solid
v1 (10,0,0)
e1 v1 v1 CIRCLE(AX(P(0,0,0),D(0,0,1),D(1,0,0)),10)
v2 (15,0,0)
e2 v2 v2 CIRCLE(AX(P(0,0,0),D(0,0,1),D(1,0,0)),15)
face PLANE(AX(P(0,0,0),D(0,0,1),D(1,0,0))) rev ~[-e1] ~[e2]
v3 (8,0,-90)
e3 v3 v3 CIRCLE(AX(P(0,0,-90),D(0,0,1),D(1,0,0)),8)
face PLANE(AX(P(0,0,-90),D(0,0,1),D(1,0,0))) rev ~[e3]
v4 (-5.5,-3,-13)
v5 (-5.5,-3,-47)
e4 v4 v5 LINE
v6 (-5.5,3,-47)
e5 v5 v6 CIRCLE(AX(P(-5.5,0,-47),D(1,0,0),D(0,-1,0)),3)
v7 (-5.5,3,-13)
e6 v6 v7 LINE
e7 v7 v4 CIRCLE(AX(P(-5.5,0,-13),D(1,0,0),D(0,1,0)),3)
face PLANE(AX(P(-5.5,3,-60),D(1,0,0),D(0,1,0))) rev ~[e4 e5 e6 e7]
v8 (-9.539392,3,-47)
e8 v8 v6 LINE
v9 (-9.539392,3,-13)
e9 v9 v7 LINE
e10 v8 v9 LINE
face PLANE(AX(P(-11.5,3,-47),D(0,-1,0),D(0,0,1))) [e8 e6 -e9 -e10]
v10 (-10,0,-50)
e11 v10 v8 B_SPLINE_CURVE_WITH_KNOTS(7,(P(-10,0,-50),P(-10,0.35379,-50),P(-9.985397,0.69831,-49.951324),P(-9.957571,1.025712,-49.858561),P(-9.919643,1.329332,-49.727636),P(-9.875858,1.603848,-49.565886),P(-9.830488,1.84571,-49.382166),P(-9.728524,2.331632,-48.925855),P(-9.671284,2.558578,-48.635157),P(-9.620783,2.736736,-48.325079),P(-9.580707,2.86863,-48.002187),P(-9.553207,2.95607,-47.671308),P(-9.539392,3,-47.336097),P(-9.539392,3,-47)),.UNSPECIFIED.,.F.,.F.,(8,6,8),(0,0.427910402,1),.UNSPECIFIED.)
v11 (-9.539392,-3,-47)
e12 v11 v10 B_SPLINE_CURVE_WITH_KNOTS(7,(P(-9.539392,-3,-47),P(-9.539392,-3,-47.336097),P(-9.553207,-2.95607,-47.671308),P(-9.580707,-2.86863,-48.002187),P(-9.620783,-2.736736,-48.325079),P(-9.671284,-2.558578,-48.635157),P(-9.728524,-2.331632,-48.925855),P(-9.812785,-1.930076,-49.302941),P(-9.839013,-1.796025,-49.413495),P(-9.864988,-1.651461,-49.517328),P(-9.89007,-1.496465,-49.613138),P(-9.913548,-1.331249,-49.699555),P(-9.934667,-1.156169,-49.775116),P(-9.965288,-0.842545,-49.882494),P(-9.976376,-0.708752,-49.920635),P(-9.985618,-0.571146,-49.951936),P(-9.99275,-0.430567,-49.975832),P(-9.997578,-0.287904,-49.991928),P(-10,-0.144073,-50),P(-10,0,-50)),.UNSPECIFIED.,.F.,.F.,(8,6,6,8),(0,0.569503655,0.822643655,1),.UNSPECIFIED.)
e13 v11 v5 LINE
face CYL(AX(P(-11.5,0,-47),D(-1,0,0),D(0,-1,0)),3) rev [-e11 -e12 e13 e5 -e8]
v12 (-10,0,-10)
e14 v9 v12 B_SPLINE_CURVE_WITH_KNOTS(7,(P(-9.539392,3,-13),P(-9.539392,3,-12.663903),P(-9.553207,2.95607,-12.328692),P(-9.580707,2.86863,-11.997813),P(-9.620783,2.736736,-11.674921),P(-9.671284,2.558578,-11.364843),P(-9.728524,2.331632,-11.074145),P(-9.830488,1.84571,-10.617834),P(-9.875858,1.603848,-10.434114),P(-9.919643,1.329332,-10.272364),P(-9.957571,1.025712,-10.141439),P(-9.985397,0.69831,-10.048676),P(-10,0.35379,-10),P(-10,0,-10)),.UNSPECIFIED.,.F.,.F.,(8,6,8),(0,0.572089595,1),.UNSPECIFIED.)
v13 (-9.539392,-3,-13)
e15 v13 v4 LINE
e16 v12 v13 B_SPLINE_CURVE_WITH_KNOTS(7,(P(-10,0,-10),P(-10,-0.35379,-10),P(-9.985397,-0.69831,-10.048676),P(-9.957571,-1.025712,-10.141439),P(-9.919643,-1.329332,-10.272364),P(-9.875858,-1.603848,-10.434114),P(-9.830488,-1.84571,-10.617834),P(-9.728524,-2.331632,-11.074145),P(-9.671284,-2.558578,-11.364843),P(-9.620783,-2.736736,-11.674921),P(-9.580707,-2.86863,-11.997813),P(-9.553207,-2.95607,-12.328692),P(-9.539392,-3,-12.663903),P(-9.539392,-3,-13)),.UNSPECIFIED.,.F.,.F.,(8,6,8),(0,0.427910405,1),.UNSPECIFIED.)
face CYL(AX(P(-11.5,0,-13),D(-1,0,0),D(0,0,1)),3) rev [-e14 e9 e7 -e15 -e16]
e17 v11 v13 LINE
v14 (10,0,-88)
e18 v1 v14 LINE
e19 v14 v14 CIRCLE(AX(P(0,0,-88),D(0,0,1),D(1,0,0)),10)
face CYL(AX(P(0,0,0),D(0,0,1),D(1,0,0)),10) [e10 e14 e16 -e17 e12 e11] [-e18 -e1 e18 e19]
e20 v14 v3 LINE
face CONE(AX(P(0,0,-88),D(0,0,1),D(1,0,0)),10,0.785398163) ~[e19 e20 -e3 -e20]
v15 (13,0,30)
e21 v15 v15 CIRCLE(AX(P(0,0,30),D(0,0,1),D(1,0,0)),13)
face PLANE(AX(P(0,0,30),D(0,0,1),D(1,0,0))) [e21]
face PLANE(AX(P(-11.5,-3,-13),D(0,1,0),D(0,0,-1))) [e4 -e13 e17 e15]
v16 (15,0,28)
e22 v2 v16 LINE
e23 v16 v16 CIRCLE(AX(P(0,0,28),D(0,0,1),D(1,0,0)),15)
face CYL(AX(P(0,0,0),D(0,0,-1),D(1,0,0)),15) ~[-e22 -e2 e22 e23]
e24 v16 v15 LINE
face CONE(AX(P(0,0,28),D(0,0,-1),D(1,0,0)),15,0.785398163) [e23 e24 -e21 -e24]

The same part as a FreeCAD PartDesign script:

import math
import FreeCAD as App
import Part
import Sketcher
from FreeCAD import Vector
Q = App.Units.Quantity


def edges_at(feature, points):
    """Names of the edges that pass closest to the given points."""
    edges = feature.Shape.Edges
    near = lambda p: min(range(len(edges)), key=lambda i: edges[i].distToShape(Part.Vertex(*p))[0])
    return sorted({f"Edge{near(p) + 1}" for p in points})

doc = App.newDocument("Part")
body = doc.addObject("PartDesign::Body", "Body")

# Sketch on XY plane
sketch1 = body.newObject("Sketcher::SketchObject", "Sketch")
sketch1.AttachmentSupport = (doc.getObject("XY_Plane"), [""])
sketch1.MapMode = "FlatFace"
sketch1.addGeometry(Part.Circle(Vector(0, 0, 0), Vector(0, 0, 1), 10), False)
sketch1.addConstraint([
    Sketcher.Constraint("Coincident", 0, 3, -1, 1),
    Sketcher.Constraint("Diameter", 0, Q("20 mm")),
])
pad1 = body.newObject("PartDesign::Pad", "Pad")
pad1.Profile = sketch1
pad1.Length = 90
pad1.Reversed = True

# Sketch on XY plane
sketch2 = body.newObject("Sketcher::SketchObject", "Sketch001")
sketch2.AttachmentSupport = (doc.getObject("XY_Plane"), [""])
sketch2.MapMode = "FlatFace"
sketch2.addGeometry(Part.Circle(Vector(0, 0, 0), Vector(0, 0, 1), 15), False)
sketch2.addConstraint([
    Sketcher.Constraint("Coincident", 0, 3, -1, 1),
    Sketcher.Constraint("Diameter", 0, Q("30 mm")),
])
pad2 = body.newObject("PartDesign::Pad", "Pad001")
pad2.Profile = sketch2
pad2.Length = 30
doc.recompute()

chamfer = body.newObject("PartDesign::Chamfer", "Chamfer")
chamfer.Base = (pad2, edges_at(pad2, [(-15, 0, 30), (-10, 0, -90)]))
chamfer.Size = 2

# Sketch on YZ plane
sketch3 = body.newObject("Sketcher::SketchObject", "Sketch002")
sketch3.AttachmentSupport = (doc.getObject("YZ_Plane"), [""])
sketch3.MapMode = "FlatFace"
sketch3.AttachmentOffset = App.Placement(Vector(0, 0, -11.5), App.Rotation())
sketch3.addGeometry([
    Part.ArcOfCircle(Part.Circle(Vector(0, -47, 0), Vector(0, 0, 1), 3), math.radians(180), math.radians(360)),
    Part.LineSegment(Vector(3, -47, 0), Vector(3, -13, 0)),
    Part.ArcOfCircle(Part.Circle(Vector(0, -13, 0), Vector(0, 0, 1), 3), math.radians(0), math.radians(180)),
    Part.LineSegment(Vector(-3, -13, 0), Vector(-3, -47, 0)),
], False)
sketch3.addConstraint([
    Sketcher.Constraint("Tangent", 0, 2, 1, 1),
    Sketcher.Constraint("Tangent", 1, 2, 2, 1),
    Sketcher.Constraint("Tangent", 2, 2, 3, 1),
    Sketcher.Constraint("Tangent", 3, 2, 0, 1),
    Sketcher.Constraint("Vertical", 1),
    Sketcher.Constraint("Vertical", 3),
    Sketcher.Constraint("PointOnObject", 0, 3, -2),
    Sketcher.Constraint("Radius", 0, Q("3 mm")),
    Sketcher.Constraint("DistanceY", 1, 1, 1, 2, Q("34 mm")),
    Sketcher.Constraint("DistanceY", 0, 3, -1, 1, Q("47 mm")),
])
pocket1 = body.newObject("PartDesign::Pocket", "Pocket")
pocket1.Profile = sketch3
pocket1.Length = 6
pocket1.Reversed = True

doc.recompute()
